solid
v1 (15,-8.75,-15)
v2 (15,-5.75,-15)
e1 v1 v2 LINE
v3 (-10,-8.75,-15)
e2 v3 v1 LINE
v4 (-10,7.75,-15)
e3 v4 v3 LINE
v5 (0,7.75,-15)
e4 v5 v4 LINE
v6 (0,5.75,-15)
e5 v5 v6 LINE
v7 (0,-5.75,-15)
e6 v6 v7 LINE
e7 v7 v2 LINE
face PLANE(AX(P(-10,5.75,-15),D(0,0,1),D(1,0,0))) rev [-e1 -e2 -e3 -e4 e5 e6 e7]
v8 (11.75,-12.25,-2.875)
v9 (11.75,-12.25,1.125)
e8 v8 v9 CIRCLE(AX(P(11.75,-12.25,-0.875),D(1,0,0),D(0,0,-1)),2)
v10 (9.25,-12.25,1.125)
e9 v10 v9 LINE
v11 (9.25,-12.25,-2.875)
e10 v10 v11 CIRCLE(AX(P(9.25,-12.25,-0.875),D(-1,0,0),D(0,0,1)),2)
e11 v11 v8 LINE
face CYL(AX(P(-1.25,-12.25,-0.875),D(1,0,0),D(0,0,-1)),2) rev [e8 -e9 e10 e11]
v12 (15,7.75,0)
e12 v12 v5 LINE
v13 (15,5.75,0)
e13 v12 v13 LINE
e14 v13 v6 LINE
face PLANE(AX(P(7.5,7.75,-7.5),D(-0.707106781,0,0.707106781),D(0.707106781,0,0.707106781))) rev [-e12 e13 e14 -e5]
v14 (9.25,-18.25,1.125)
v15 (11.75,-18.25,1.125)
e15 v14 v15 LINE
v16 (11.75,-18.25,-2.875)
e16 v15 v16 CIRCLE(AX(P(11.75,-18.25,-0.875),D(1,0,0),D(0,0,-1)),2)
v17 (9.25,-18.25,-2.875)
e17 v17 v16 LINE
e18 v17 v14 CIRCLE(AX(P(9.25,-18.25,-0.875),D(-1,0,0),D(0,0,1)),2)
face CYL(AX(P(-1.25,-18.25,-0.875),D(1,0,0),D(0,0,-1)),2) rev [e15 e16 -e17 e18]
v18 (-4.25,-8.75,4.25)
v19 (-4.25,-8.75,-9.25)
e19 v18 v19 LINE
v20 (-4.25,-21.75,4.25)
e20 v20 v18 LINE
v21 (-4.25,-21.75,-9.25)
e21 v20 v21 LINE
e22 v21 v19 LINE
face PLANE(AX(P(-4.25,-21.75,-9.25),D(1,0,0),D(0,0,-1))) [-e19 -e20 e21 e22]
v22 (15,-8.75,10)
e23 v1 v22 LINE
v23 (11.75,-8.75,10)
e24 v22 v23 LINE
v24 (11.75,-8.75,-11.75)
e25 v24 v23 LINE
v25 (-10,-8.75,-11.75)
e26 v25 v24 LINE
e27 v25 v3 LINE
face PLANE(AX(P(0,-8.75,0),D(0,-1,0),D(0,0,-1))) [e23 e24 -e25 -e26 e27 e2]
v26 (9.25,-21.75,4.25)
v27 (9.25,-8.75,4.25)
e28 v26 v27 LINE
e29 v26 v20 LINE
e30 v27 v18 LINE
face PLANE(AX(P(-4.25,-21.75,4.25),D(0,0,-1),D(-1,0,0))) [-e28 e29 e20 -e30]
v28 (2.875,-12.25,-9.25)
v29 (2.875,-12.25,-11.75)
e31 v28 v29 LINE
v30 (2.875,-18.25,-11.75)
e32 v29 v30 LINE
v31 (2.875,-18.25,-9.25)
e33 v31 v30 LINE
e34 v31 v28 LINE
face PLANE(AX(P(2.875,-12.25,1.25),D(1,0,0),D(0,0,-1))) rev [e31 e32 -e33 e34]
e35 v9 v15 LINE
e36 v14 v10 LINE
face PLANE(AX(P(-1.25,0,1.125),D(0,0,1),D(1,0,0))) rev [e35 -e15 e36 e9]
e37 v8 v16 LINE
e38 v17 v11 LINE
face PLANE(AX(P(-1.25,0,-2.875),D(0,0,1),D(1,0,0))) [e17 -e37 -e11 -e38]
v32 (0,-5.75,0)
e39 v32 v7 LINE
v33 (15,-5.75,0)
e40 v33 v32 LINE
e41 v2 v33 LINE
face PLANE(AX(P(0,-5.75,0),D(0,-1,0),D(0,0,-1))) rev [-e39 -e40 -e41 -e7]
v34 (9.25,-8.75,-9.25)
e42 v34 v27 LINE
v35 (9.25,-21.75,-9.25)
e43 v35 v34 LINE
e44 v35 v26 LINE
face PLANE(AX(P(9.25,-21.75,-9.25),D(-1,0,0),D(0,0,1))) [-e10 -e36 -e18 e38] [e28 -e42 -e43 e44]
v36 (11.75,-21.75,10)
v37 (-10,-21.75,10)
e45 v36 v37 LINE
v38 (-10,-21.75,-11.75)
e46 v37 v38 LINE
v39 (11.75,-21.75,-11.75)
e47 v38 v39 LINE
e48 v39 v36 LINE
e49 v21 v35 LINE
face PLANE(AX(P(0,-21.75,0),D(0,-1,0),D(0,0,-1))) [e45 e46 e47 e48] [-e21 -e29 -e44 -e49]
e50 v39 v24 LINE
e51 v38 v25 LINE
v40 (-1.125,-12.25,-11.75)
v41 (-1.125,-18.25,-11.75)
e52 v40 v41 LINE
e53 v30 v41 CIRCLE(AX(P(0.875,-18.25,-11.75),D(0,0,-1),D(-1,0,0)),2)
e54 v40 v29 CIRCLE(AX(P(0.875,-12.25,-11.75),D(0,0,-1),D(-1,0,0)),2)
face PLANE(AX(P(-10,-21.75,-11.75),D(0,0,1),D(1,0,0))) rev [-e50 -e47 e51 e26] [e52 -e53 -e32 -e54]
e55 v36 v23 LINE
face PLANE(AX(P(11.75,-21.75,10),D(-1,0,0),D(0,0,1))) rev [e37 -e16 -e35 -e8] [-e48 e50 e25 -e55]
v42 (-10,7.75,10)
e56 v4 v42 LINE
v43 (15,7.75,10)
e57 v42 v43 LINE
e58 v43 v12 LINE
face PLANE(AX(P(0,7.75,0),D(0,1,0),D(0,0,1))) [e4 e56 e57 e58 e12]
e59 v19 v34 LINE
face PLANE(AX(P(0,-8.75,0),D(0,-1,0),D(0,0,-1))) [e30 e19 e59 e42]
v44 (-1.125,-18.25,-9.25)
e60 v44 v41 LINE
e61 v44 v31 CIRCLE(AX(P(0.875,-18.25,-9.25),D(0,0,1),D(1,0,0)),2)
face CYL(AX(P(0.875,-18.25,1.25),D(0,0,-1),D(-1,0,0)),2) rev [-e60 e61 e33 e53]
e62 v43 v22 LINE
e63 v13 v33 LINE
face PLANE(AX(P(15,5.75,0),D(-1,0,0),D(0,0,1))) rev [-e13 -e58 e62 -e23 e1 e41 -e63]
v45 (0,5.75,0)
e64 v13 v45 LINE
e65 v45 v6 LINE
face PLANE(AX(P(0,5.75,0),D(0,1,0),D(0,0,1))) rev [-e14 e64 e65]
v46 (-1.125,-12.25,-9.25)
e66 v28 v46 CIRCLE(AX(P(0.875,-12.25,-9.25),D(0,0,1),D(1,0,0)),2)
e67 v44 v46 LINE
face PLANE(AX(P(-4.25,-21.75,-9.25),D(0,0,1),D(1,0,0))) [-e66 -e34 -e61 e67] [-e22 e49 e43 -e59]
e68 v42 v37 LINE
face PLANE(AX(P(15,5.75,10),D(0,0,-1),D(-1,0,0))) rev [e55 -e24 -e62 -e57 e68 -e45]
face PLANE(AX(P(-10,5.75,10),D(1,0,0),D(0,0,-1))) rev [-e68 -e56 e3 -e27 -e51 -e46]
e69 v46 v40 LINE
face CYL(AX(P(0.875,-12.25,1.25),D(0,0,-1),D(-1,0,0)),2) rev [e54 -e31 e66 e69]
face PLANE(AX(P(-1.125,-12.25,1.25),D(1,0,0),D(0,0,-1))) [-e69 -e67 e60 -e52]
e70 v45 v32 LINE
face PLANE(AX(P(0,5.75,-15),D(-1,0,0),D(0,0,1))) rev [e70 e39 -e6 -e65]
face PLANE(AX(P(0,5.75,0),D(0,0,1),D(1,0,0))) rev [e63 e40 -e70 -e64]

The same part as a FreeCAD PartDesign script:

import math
import FreeCAD as App
import Part
import Sketcher
from FreeCAD import Vector
Q = App.Units.Quantity


def add_polygon(sketch, points):
    """Adds a closed chain of lines whose ends are joined by coincident constraints."""
    first, n = sketch.GeometryCount, len(points)
    for a, b in zip(points, points[1:] + points[:1]):
        sketch.addGeometry(Part.LineSegment(App.Vector(*a, 0), App.Vector(*b, 0)), False)
    for i in range(n):
        sketch.addConstraint(Sketcher.Constraint("Coincident", first + i, 2, first + (i + 1) % n, 1))

doc = App.newDocument("Part")
body = doc.addObject("PartDesign::Body", "Body")

# Sketch on XZ plane
sketch1 = doc.addObject("Sketcher::SketchObject", "Sketch")
body.addObject(sketch1)
sketch1.AttachmentSupport = (doc.XZ_Plane, [""])
sketch1.MapMode = "FlatFace"
add_polygon(sketch1, [(15, 0), (0, 0), (0, -15), (-10, -15), (-10, 10), (15, 10)])  # lines 0-5
sketch1.addConstraint(Sketcher.Constraint("Horizontal", 0))
sketch1.addConstraint(Sketcher.Constraint("Vertical", 1))
sketch1.addConstraint(Sketcher.Constraint("Horizontal", 2))
sketch1.addConstraint(Sketcher.Constraint("Vertical", 3))
sketch1.addConstraint(Sketcher.Constraint("Horizontal", 4))
sketch1.addConstraint(Sketcher.Constraint("Vertical", 5))
sketch1.addConstraint(Sketcher.Constraint("Coincident", 0, 2, -1, 1))
sketch1.addConstraint(Sketcher.Constraint("Equal", 0, 1))
sketch1.addConstraint(Sketcher.Constraint("Equal", 4, 3))
sketch1.addConstraint(Sketcher.Constraint("DistanceX", 0, 2, 0, 1, Q("15 mm")))
sketch1.addConstraint(Sketcher.Constraint("DistanceX", 2, 2, 2, 1, Q("10 mm")))
pad1 = doc.addObject("PartDesign::Pad", "Pad")
body.addObject(pad1)
pad1.Profile = sketch1
pad1.Length = 11.5
pad1.Midplane = True

# Sketch on XZ plane
sketch2 = doc.addObject("Sketcher::SketchObject", "Sketch001")
body.addObject(sketch2)
sketch2.AttachmentSupport = (doc.XZ_Plane, [""])
sketch2.MapMode = "FlatFace"
sketch2.AttachmentOffset = App.Placement(Vector(0, 0, 5.75), App.Rotation())
add_polygon(sketch2, [(-10, 10), (-10, -15), (15, -15), (15, 10)])  # lines 0-3
sketch2.addConstraint(Sketcher.Constraint("Vertical", 0))
sketch2.addConstraint(Sketcher.Constraint("Horizontal", 1))
sketch2.addConstraint(Sketcher.Constraint("Vertical", 2))
sketch2.addConstraint(Sketcher.Constraint("Horizontal", 3))
sketch2.addConstraint(Sketcher.Constraint("Equal", 3, 0))
sketch2.addConstraint(Sketcher.Constraint("DistanceX", 1, 1, 1, 2, Q("25 mm")))
sketch2.addConstraint(Sketcher.Constraint("DistanceX", 0, 2, -1, 1, Q("10 mm")))
sketch2.addConstraint(Sketcher.Constraint("DistanceY", 0, 2, -1, 1, Q("15 mm")))
pad2 = doc.addObject("PartDesign::Pad", "Pad001")
body.addObject(pad2)
pad2.Profile = sketch2
pad2.Length = 3

# Sketch on XZ plane
sketch3 = doc.addObject("Sketcher::SketchObject", "Sketch002")
body.addObject(sketch3)
sketch3.AttachmentSupport = (doc.XZ_Plane, [""])
sketch3.MapMode = "FlatFace"
sketch3.AttachmentOffset = App.Placement(Vector(0, 0, 8.75), App.Rotation())
add_polygon(sketch3, [(-10, 10), (-10, -12), (12, -12), (12, 10)])  # lines 0-3
add_polygon(sketch3, [(9, -9), (-4, -9), (-4, 4), (9, 4)])  # lines 4-7
sketch3.addConstraint(Sketcher.Constraint("Vertical", 0))
sketch3.addConstraint(Sketcher.Constraint("Horizontal", 1))
sketch3.addConstraint(Sketcher.Constraint("Vertical", 2))
sketch3.addConstraint(Sketcher.Constraint("Horizontal", 3))
sketch3.addConstraint(Sketcher.Constraint("Horizontal", 4))
sketch3.addConstraint(Sketcher.Constraint("Vertical", 5))
sketch3.addConstraint(Sketcher.Constraint("Horizontal", 6))
sketch3.addConstraint(Sketcher.Constraint("Vertical", 7))
sketch3.addConstraint(Sketcher.Constraint("Equal", 3, 0))
sketch3.addConstraint(Sketcher.Constraint("Equal", 6, 5))
sketch3.addConstraint(Sketcher.Constraint("DistanceX", 4, 2, 4, 1, Q("13.5 mm")))
sketch3.addConstraint(Sketcher.Constraint("DistanceX", 0, 2, -1, 1, Q("10 mm")))
sketch3.addConstraint(Sketcher.Constraint("DistanceY", -1, 1, 2, 2, Q("10 mm")))
sketch3.addConstraint(Sketcher.Constraint("DistanceX", 4, 2, 1, 2, Q("16 mm")))
sketch3.addConstraint(Sketcher.Constraint("DistanceY", 0, 2, 5, 2, Q("16 mm")))
sketch3.addConstraint(Sketcher.Constraint("DistanceX", 1, 1, 1, 2, Q("21.75 mm")))
pad3 = doc.addObject("PartDesign::Pad", "Pad002")
body.addObject(pad3)
pad3.Profile = sketch3
pad3.Length = 13

# Sketch on YZ plane
sketch4 = doc.addObject("Sketcher::SketchObject", "Sketch003")
body.addObject(sketch4)
sketch4.AttachmentSupport = (doc.YZ_Plane, [""])
sketch4.MapMode = "FlatFace"
sketch4.AttachmentOffset = App.Placement(Vector(0, 0, 11.75), App.Rotation())
sketch4.addGeometry(Part.LineSegment(Vector(-12.2, 1.1, 0), Vector(-18.2, 1.1, 0)), False)
sketch4.addGeometry(Part.ArcOfCircle(Part.Circle(Vector(-18.2, -0.9, 0), Vector(0, 0, 1), 2), math.radians(90), math.radians(270)), False)
sketch4.addGeometry(Part.LineSegment(Vector(-18.2, -2.9, 0), Vector(-12.2, -2.9, 0)), False)
sketch4.addGeometry(Part.ArcOfCircle(Part.Circle(Vector(-12.2, -0.9, 0), Vector(0, 0, 1), 2), math.radians(-90), math.radians(90)), False)
sketch4.addConstraint(Sketcher.Constraint("Tangent", 0, 2, 1, 1))
sketch4.addConstraint(Sketcher.Constraint("Tangent", 1, 2, 2, 1))
sketch4.addConstraint(Sketcher.Constraint("Tangent", 2, 2, 3, 1))
sketch4.addConstraint(Sketcher.Constraint("Tangent", 3, 2, 0, 1))
sketch4.addConstraint(Sketcher.Constraint("Horizontal", 0))
sketch4.addConstraint(Sketcher.Constraint("Horizontal", 2))
sketch4.addConstraint(Sketcher.Constraint("Radius", 1, Q("2 mm")))
sketch4.addConstraint(Sketcher.Constraint("DistanceX", 0, 2, 0, 1, Q("6 mm")))
sketch4.addConstraint(Sketcher.Constraint("DistanceX", 1, 3, -1, 1, Q("18.25 mm")))
sketch4.addConstraint(Sketcher.Constraint("DistanceY", 1, 3, -1, 1, Q("0.875 mm")))
pocket1 = doc.addObject("PartDesign::Pocket", "Pocket")
body.addObject(pocket1)
pocket1.Profile = sketch4
pocket1.Length = 13

# Sketch on XY plane
sketch5 = doc.addObject("Sketcher::SketchObject", "Sketch004")
body.addObject(sketch5)
sketch5.AttachmentSupport = (doc.XY_Plane, [""])
sketch5.MapMode = "FlatFace"
sketch5.AttachmentOffset = App.Placement(Vector(0, 0, -11.75), App.Rotation())
sketch5.addGeometry(Part.LineSegment(Vector(-1.1, -18.2, 0), Vector(-1.1, -12.2, 0)), False)
sketch5.addGeometry(Part.ArcOfCircle(Part.Circle(Vector(0.9, -12.2, 0), Vector(0, 0, 1), 2), math.radians(0), math.radians(180)), False)
sketch5.addGeometry(Part.LineSegment(Vector(2.9, -12.2, 0), Vector(2.9, -18.2, 0)), False)
sketch5.addGeometry(Part.ArcOfCircle(Part.Circle(Vector(0.9, -18.2, 0), Vector(0, 0, 1), 2), math.radians(180), math.radians(360)), False)
sketch5.addConstraint(Sketcher.Constraint("Tangent", 0, 2, 1, 2))
sketch5.addConstraint(Sketcher.Constraint("Tangent", 1, 1, 2, 1))
sketch5.addConstraint(Sketcher.Constraint("Tangent", 2, 2, 3, 2))
sketch5.addConstraint(Sketcher.Constraint("Tangent", 3, 1, 0, 1))
sketch5.addConstraint(Sketcher.Constraint("Vertical", 0))
sketch5.addConstraint(Sketcher.Constraint("Vertical", 2))
sketch5.addConstraint(Sketcher.Constraint("Radius", 1, Q("2 mm")))
sketch5.addConstraint(Sketcher.Constraint("DistanceY", 0, 1, 0, 2, Q("6 mm")))
sketch5.addConstraint(Sketcher.Constraint("DistanceY", 1, 3, -1, 1, Q("12.25 mm")))
sketch5.addConstraint(Sketcher.Constraint("DistanceX", -1, 1, 1, 3, Q("0.875 mm")))
pocket2 = doc.addObject("PartDesign::Pocket", "Pocket001")
body.addObject(pocket2)
pocket2.Profile = sketch5
pocket2.Length = 13
pocket2.Reversed = True

# Sketch on XZ plane
sketch6 = doc.addObject("Sketcher::SketchObject", "Sketch005")
body.addObject(sketch6)
sketch6.AttachmentSupport = (doc.XZ_Plane, [""])
sketch6.MapMode = "FlatFace"
sketch6.AttachmentOffset = App.Placement(Vector(0, 0, -5.75), App.Rotation())
add_polygon(sketch6, [(15, 0), (0, -15), (-10, -15), (-10, 10), (15, 10)])  # lines 0-4
sketch6.addConstraint(Sketcher.Constraint("Horizontal", 1))
sketch6.addConstraint(Sketcher.Constraint("Vertical", 2))
sketch6.addConstraint(Sketcher.Constraint("Horizontal", 3))
sketch6.addConstraint(Sketcher.Constraint("Vertical", 4))
sketch6.addConstraint(Sketcher.Constraint("PointOnObject", 0, 2, -2))
sketch6.addConstraint(Sketcher.Constraint("PointOnObject", 4, 2, -1))
sketch6.addConstraint(Sketcher.Constraint("Equal", 3, 2))
sketch6.addConstraint(Sketcher.Constraint("Equal", 1, 4))
sketch6.addConstraint(Sketcher.Constraint("DistanceX", 1, 2, 1, 1, Q("10 mm")))
sketch6.addConstraint(Sketcher.Constraint("DistanceX", 3, 1, 3, 2, Q("25 mm")))
pad4 = doc.addObject("PartDesign::Pad", "Pad003")
body.addObject(pad4)
pad4.Profile = sketch6
pad4.Length = 2
pad4.Reversed = True

doc.recompute()
